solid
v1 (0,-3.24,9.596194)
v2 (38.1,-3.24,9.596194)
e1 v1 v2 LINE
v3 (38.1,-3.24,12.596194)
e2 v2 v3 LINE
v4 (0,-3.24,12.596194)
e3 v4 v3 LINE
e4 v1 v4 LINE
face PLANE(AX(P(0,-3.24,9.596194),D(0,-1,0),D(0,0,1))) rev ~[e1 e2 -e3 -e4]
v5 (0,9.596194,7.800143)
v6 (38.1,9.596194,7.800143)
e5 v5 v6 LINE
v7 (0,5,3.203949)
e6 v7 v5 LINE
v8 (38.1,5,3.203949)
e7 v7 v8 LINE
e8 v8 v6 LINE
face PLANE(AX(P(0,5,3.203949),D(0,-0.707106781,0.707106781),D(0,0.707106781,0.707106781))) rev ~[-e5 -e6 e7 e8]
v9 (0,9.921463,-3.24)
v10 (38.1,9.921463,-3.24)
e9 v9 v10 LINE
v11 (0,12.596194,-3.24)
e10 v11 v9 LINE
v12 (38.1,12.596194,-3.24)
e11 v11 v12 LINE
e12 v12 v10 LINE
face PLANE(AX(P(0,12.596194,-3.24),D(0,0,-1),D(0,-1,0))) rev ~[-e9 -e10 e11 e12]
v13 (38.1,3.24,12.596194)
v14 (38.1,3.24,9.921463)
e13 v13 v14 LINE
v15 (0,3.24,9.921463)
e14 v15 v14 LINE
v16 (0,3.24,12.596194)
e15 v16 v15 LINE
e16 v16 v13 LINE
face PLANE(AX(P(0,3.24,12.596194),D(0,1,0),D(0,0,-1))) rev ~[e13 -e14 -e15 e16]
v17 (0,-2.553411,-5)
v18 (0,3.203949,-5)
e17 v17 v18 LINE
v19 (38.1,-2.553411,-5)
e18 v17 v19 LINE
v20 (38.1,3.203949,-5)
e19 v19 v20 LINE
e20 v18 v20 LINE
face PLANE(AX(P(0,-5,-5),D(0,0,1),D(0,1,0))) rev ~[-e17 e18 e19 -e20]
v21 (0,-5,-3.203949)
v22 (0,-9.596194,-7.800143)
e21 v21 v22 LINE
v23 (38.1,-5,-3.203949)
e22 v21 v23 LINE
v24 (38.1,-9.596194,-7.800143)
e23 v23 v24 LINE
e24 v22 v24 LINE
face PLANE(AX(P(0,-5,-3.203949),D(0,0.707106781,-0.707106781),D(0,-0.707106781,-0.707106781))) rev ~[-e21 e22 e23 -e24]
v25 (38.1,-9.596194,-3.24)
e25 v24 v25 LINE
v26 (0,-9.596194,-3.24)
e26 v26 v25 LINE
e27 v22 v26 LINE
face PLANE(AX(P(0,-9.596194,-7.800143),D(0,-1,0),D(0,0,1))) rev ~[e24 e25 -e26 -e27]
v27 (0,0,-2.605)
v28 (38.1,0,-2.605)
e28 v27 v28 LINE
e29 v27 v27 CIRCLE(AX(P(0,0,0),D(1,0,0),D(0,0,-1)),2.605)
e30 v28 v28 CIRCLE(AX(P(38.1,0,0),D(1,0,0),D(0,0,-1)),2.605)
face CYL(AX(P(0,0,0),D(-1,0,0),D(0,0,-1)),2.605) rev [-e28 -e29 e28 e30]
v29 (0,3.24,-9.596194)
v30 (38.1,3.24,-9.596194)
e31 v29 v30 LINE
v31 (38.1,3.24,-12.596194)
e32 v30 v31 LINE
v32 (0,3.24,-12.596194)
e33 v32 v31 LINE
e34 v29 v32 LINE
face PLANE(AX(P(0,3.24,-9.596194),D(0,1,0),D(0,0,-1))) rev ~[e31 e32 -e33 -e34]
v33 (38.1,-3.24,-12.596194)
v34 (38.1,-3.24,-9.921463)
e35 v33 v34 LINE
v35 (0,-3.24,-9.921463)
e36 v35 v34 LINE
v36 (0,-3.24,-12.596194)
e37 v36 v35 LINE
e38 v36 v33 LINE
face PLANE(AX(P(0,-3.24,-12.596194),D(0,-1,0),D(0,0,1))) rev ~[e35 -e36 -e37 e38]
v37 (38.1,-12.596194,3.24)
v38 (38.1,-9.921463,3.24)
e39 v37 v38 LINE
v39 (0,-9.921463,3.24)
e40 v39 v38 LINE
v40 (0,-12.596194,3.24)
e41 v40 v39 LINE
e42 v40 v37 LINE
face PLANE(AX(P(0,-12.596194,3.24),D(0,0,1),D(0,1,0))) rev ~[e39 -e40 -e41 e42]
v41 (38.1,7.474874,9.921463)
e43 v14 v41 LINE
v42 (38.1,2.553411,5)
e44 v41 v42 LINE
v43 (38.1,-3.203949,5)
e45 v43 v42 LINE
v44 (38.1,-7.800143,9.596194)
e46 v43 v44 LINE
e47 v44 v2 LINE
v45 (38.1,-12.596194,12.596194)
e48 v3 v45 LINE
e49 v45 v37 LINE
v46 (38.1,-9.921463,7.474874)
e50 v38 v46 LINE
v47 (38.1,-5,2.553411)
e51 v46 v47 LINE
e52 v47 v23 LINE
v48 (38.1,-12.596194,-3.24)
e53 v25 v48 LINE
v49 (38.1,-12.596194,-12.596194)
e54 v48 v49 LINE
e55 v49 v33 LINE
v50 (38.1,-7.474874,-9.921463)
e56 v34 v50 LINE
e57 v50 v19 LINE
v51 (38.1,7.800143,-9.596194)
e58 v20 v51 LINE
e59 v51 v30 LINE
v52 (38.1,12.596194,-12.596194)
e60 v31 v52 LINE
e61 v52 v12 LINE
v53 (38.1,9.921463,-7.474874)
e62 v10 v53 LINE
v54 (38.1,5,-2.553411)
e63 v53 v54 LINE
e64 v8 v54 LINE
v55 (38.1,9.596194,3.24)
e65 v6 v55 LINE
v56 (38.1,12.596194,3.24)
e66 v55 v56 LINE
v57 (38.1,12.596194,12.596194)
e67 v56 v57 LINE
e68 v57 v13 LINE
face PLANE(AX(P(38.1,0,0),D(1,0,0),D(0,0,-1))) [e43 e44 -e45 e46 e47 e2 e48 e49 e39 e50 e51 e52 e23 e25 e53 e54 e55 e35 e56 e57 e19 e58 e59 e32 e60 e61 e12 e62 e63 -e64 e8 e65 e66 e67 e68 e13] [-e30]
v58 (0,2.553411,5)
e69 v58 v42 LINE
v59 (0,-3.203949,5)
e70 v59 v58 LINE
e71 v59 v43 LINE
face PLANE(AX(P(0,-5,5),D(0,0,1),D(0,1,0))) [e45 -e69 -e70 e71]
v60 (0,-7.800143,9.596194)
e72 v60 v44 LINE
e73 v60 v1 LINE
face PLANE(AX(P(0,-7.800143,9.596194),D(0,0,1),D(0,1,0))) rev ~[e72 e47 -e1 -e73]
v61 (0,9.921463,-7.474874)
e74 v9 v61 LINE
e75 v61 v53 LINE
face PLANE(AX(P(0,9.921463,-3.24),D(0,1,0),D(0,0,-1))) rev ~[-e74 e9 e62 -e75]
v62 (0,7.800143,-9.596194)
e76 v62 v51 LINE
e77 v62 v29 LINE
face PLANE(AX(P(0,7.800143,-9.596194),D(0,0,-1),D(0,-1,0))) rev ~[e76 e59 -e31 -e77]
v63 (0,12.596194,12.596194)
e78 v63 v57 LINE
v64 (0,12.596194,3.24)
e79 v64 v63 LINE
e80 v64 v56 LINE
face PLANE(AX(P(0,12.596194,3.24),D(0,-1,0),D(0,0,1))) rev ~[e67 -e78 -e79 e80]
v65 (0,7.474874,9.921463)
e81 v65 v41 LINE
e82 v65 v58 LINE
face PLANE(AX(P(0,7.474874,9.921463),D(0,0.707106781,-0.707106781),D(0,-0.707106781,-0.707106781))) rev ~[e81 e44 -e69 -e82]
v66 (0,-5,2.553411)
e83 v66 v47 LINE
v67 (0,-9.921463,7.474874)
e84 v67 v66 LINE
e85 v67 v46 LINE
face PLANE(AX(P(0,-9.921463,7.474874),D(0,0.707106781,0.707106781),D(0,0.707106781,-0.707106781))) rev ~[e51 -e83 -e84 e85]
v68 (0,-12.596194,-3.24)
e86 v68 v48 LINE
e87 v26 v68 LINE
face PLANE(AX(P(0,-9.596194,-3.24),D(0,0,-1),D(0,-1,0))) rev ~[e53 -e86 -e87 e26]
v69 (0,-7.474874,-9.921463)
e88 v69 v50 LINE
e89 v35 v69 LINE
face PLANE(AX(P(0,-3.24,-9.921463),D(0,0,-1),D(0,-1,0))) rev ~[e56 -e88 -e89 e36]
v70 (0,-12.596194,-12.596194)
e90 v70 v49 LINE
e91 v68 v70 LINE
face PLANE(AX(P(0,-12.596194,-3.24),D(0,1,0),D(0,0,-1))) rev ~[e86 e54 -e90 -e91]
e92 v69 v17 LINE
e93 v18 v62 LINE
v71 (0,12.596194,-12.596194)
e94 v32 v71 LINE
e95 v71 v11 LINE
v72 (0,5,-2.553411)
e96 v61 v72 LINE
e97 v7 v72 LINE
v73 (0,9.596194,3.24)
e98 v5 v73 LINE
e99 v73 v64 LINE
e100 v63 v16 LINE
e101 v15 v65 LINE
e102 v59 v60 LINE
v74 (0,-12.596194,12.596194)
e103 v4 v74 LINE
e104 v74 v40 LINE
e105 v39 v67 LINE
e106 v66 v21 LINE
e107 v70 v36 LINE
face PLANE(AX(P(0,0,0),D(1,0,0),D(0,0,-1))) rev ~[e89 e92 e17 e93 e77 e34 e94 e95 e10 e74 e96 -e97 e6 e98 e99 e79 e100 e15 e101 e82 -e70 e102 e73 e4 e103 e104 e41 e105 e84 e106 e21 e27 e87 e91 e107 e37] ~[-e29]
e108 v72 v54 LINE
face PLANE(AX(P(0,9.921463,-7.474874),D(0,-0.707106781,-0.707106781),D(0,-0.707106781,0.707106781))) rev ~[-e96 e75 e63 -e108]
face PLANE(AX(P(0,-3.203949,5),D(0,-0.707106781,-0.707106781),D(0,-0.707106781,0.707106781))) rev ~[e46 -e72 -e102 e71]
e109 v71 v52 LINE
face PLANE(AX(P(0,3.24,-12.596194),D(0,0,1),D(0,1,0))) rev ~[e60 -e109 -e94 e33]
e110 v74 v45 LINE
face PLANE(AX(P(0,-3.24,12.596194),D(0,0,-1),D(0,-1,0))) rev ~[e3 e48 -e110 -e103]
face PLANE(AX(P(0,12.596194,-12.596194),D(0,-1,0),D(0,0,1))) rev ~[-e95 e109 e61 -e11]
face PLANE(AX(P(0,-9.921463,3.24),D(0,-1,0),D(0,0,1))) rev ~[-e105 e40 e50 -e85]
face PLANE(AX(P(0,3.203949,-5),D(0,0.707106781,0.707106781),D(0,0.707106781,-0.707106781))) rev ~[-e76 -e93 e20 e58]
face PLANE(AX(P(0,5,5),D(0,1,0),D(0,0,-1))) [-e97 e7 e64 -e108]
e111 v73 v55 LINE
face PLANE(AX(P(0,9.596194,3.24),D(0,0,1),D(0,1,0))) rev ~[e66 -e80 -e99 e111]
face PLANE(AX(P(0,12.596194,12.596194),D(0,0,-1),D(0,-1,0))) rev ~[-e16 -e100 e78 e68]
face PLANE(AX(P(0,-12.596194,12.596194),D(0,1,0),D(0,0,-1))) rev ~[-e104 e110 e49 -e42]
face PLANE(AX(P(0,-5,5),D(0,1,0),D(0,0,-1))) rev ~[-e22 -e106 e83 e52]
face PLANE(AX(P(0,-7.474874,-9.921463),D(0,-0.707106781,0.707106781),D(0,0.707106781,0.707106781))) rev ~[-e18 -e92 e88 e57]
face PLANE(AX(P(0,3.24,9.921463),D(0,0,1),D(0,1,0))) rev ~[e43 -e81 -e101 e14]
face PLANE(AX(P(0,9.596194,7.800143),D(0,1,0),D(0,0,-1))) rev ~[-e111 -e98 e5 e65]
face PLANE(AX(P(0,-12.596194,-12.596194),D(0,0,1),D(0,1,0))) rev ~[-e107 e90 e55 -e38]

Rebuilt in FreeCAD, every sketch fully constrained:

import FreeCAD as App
import Part
import Sketcher

V = App.Vector
Q = App.Units.Quantity


def add_polygon(sketch, points):
    """Adds a closed chain of lines whose ends are joined by coincident constraints."""
    first, n = sketch.GeometryCount, len(points)
    for a, b in zip(points, points[1:] + points[:1]):
        sketch.addGeometry(Part.LineSegment(App.Vector(*a, 0), App.Vector(*b, 0)), False)
    for i in range(n):
        sketch.addConstraint(Sketcher.Constraint("Coincident", first + i, 2, first + (i + 1) % n, 1))

doc = App.newDocument("Part")
body = doc.addObject("PartDesign::Body", "Body")

sketch1 = body.newObject("Sketcher::SketchObject", "Sketch")
sketch1.AttachmentSupport = (doc.getObject("YZ_Plane"), [""])
sketch1.MapMode = "FlatFace"
add_polygon(sketch1, [(5, 5), (-5, 5), (-5, -5), (3.2, -5), (7.8, -9.6), (3.2, -9.6), (3.2, -12.6), (12.6, -12.6), (12.6, -3.2), (9.9, -3.2), (9.9, -7.5), (5, -2.6)])
sketch1.addGeometry(Part.Circle(V(0, 0, 0), V(0, 0, 1), 2.6), False)
sketch1.addConstraint([
    Sketcher.Constraint("Horizontal", 0),
    Sketcher.Constraint("Vertical", 1),
    Sketcher.Constraint("Horizontal", 2),
    Sketcher.Constraint("Horizontal", 4),
    Sketcher.Constraint("Vertical", 5),
    Sketcher.Constraint("Horizontal", 6),
    Sketcher.Constraint("Vertical", 7),
    Sketcher.Constraint("Horizontal", 8),
    Sketcher.Constraint("Vertical", 9),
    Sketcher.Constraint("Vertical", 11),
    Sketcher.Constraint("Coincident", 12, 3, -1, 1),
    Sketcher.Constraint("Symmetric", 1, 2, 11, 2, -1, 1),
    Sketcher.Constraint("Parallel", 3, 10),
    Sketcher.Constraint("Equal", 0, 1),
    Sketcher.Constraint("Equal", 6, 7),
    Sketcher.Constraint("Diameter", 12, 5.21),
    Sketcher.Constraint("DistanceX", 0, 2, 0, 1, 10.0),
    Sketcher.Constraint("DistanceY", 5, 2, 5, 1, 3.0),
    Sketcher.Constraint("Angle", 3, Q("-45 deg")),
    Sketcher.Constraint("Distance", 3, 6.5),
    Sketcher.Constraint("Distance", 10, 6.96),
    Sketcher.Constraint("DistanceX", -1, 1, 4, 2, 3.24),
    Sketcher.Constraint("DistanceY", 7, 2, -1, 1, 3.24),
    Sketcher.Constraint("DistanceX", 2, 1, 2, 2, 8.203949),
    Sketcher.Constraint("DistanceY", 11, 1, 11, 2, 7.553411),
])
pad1 = body.newObject("PartDesign::Pad", "Pad")
pad1.Profile = sketch1
pad1.Length = 38.1
doc.recompute()

polarpattern = body.newObject("PartDesign::PolarPattern", "PolarPattern")
polarpattern.Originals = [pad1]
polarpattern.Axis = (doc.getObject("X_Axis"), [""])
polarpattern.Angle = 360
polarpattern.Occurrences = 4
body.Tip = polarpattern

doc.recompute()
